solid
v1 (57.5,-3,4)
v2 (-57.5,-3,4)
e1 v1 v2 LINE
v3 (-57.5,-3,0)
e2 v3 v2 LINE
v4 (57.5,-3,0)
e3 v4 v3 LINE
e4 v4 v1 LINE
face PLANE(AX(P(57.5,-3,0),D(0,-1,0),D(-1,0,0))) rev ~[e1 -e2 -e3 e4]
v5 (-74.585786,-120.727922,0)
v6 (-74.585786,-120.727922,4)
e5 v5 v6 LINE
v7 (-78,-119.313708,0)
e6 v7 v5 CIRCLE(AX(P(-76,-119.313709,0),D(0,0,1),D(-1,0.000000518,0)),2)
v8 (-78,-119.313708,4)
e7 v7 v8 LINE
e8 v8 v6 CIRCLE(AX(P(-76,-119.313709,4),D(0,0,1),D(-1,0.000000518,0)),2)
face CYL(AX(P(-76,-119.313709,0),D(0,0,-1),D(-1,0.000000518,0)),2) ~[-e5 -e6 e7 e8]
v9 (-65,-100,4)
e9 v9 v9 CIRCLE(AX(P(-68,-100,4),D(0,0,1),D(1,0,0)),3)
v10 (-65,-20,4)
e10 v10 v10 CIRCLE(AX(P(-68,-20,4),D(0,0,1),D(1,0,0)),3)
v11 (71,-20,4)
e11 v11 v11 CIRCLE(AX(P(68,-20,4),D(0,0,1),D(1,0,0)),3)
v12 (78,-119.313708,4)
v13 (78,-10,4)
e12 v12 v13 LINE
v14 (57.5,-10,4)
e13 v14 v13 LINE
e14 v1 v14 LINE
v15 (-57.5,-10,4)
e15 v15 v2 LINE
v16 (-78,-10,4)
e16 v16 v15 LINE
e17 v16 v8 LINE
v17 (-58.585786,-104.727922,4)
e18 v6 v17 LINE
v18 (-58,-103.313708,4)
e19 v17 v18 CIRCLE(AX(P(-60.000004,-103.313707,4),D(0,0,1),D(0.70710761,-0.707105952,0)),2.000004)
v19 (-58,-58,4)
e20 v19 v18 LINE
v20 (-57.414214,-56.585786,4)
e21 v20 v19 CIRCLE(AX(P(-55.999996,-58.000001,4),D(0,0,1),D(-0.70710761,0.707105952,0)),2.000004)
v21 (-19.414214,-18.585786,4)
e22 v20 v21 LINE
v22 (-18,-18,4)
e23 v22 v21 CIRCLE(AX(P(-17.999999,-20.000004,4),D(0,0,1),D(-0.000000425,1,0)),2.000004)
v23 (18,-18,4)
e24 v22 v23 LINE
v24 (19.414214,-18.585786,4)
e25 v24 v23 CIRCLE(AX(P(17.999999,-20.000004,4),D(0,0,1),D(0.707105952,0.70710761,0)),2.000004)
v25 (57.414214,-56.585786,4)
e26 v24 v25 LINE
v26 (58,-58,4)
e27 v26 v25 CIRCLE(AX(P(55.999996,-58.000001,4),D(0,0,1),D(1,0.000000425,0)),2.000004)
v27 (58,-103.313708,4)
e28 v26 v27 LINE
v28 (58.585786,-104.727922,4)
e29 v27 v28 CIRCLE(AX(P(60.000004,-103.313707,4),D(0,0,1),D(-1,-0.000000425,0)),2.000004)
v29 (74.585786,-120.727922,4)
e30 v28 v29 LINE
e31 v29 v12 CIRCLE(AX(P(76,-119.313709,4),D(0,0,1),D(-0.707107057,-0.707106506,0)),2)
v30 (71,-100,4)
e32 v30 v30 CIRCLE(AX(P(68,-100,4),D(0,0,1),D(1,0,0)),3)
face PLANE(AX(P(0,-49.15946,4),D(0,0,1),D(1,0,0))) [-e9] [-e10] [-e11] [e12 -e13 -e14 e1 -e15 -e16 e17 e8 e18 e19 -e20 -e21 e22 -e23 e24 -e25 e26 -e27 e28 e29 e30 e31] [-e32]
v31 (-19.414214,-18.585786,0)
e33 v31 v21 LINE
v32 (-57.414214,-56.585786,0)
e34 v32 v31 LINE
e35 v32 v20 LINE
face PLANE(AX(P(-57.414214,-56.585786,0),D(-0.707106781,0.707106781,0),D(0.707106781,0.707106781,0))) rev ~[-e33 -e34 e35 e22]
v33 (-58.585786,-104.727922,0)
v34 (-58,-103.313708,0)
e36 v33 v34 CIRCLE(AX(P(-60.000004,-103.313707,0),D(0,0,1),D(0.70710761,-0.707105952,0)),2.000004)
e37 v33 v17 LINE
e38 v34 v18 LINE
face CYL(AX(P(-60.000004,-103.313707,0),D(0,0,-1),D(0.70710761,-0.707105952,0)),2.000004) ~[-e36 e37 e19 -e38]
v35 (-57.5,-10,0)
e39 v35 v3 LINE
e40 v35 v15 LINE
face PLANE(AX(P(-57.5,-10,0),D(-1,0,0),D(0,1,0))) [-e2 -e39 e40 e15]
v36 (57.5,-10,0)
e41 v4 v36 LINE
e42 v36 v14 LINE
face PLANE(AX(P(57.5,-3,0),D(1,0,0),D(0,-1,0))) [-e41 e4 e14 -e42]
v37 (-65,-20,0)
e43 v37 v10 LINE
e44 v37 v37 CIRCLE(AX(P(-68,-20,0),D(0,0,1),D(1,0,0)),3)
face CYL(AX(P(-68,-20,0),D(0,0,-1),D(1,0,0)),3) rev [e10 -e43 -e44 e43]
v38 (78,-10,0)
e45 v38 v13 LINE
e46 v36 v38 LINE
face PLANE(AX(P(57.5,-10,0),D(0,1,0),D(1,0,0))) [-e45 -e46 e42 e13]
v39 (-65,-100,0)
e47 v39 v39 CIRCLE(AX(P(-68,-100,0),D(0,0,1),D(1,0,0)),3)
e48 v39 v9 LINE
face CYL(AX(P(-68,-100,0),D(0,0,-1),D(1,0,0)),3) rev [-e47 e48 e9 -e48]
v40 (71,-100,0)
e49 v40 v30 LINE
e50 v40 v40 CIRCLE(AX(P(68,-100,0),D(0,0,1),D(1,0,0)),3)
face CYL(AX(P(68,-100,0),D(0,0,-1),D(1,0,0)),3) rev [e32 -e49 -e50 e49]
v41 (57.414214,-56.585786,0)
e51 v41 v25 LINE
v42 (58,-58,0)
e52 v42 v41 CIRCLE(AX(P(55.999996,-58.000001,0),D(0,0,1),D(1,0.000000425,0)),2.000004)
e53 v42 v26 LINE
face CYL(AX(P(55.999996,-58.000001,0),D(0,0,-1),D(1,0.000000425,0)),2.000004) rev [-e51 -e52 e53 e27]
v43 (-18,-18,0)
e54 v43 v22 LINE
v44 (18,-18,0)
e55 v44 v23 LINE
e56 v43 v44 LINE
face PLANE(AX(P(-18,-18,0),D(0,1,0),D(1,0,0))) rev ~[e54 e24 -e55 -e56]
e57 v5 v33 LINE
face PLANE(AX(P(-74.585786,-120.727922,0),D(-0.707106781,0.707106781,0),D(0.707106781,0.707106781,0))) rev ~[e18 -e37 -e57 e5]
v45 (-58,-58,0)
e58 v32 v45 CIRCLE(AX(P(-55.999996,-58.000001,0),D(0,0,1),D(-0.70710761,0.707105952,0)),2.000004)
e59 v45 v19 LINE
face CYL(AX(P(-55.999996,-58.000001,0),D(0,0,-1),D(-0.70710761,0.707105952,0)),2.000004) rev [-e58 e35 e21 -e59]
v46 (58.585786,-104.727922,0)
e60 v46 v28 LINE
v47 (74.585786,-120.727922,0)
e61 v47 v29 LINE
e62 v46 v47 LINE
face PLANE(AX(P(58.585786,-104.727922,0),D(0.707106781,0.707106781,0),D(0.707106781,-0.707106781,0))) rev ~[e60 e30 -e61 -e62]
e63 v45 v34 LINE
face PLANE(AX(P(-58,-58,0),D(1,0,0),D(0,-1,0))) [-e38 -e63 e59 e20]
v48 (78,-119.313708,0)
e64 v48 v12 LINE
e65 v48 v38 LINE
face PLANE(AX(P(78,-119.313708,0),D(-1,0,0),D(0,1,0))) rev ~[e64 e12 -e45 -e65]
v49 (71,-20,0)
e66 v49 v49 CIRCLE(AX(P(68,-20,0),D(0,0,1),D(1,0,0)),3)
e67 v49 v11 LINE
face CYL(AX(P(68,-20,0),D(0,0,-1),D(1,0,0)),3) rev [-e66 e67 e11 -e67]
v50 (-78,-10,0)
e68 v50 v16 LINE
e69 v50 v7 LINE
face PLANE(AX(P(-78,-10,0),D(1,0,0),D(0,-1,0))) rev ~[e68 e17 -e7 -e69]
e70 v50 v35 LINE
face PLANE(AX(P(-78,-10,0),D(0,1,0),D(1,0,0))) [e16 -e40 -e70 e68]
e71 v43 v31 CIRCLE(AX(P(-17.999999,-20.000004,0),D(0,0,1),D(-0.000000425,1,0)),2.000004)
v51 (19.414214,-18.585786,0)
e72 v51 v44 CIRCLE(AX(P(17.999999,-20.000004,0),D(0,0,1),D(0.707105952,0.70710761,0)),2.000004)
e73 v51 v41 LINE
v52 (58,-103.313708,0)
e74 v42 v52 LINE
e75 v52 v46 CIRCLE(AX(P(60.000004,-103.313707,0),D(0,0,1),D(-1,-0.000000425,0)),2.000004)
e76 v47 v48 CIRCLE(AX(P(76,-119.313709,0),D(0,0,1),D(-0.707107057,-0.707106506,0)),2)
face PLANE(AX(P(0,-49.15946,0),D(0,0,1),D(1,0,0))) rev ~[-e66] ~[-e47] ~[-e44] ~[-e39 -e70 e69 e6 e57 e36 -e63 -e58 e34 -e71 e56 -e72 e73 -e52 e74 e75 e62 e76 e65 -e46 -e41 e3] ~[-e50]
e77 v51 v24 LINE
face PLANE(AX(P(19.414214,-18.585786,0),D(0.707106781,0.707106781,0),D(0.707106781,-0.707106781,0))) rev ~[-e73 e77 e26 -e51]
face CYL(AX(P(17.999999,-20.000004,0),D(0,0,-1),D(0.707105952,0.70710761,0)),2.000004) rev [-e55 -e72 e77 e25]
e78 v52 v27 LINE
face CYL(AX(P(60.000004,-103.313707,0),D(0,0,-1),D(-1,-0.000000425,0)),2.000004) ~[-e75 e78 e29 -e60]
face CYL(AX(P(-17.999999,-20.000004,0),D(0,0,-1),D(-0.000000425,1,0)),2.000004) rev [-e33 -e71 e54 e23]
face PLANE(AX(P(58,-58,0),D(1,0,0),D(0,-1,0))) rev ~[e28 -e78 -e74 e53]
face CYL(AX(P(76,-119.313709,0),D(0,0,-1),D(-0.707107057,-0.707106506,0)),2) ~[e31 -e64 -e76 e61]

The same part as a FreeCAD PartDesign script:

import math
import FreeCAD as App
import Part
import Sketcher

V = App.Vector
Q = App.Units.Quantity

doc = App.newDocument("Part")
body = doc.addObject("PartDesign::Body", "Body")

# Sketch on XY plane
sketch1 = body.newObject("Sketcher::SketchObject", "Sketch")
sketch1.AttachmentSupport = (doc.getObject("XY_Plane"), [""])
sketch1.MapMode = "FlatFace"
sketch1.addGeometry([
    Part.LineSegment(V(-78, -10, 0), V(-78, -119.3, 0)),  # 0
    Part.ArcOfCircle(Part.Circle(V(-76, -119.3, 0), V(0, 0, 1), 2), math.radians(180), math.radians(315)),  # 1
    Part.LineSegment(V(-74.6, -120.7, 0), V(-58.6, -104.7, 0)),  # 2
    Part.ArcOfCircle(Part.Circle(V(-60, -103.3, 0), V(0, 0, 1), 2), math.radians(-45), math.radians(0)),  # 3
    Part.LineSegment(V(-58, -103.3, 0), V(-58, -58, 0)),  # 4
    Part.ArcOfCircle(Part.Circle(V(-56, -58, 0), V(0, 0, 1), 2), math.radians(135), math.radians(180)),  # 5
    Part.LineSegment(V(-57.4, -56.6, 0), V(-19.4, -18.6, 0)),  # 6
    Part.ArcOfCircle(Part.Circle(V(-18, -20, 0), V(0, 0, 1), 2), math.radians(90), math.radians(135)),  # 7
    Part.LineSegment(V(-18, -18, 0), V(18, -18, 0)),  # 8
    Part.ArcOfCircle(Part.Circle(V(18, -20, 0), V(0, 0, 1), 2), math.radians(45), math.radians(90)),  # 9
    Part.LineSegment(V(19.4, -18.6, 0), V(57.4, -56.6, 0)),  # 10
    Part.ArcOfCircle(Part.Circle(V(56, -58, 0), V(0, 0, 1), 2), math.radians(0), math.radians(45)),  # 11
    Part.LineSegment(V(58, -58, 0), V(58, -103.3, 0)),  # 12
    Part.ArcOfCircle(Part.Circle(V(60, -103.3, 0), V(0, 0, 1), 2), math.radians(-180), math.radians(-135)),  # 13
    Part.LineSegment(V(58.6, -104.7, 0), V(74.6, -120.7, 0)),  # 14
    Part.ArcOfCircle(Part.Circle(V(76, -119.3, 0), V(0, 0, 1), 2), math.radians(-135), math.radians(0)),  # 15
    Part.LineSegment(V(78, -119.3, 0), V(78, -10, 0)),  # 16
    Part.LineSegment(V(78, -10, 0), V(57.5, -10, 0)),  # 17
    Part.LineSegment(V(57.5, -10, 0), V(57.5, -3, 0)),  # 18
    Part.LineSegment(V(57.5, -3, 0), V(-57.5, -3, 0)),  # 19
    Part.LineSegment(V(-57.5, -3, 0), V(-57.5, -10, 0)),  # 20
    Part.LineSegment(V(-57.5, -10, 0), V(-78, -10, 0)),  # 21
    Part.Circle(V(-68, -100, 0), V(0, 0, 1), 3),  # 22
    Part.Circle(V(68, -100, 0), V(0, 0, 1), 3),  # 23
    Part.Circle(V(-68, -20, 0), V(0, 0, 1), 3),  # 24
    Part.Circle(V(68, -20, 0), V(0, 0, 1), 3),  # 25
], False)
sketch1.addConstraint([
    Sketcher.Constraint("Tangent", 0, 2, 1, 1),
    Sketcher.Constraint("Tangent", 1, 2, 2, 1),
    Sketcher.Constraint("Tangent", 2, 2, 3, 1),
    Sketcher.Constraint("Tangent", 3, 2, 4, 1),
    Sketcher.Constraint("Tangent", 4, 2, 5, 2),
    Sketcher.Constraint("Tangent", 5, 1, 6, 1),
    Sketcher.Constraint("Tangent", 6, 2, 7, 2),
    Sketcher.Constraint("Tangent", 7, 1, 8, 1),
    Sketcher.Constraint("Tangent", 8, 2, 9, 2),
    Sketcher.Constraint("Tangent", 9, 1, 10, 1),
    Sketcher.Constraint("Tangent", 10, 2, 11, 2),
    Sketcher.Constraint("Tangent", 11, 1, 12, 1),
    Sketcher.Constraint("Tangent", 12, 2, 13, 1),
    Sketcher.Constraint("Tangent", 13, 2, 14, 1),
    Sketcher.Constraint("Tangent", 14, 2, 15, 1),
    Sketcher.Constraint("Tangent", 15, 2, 16, 1),
    Sketcher.Constraint("Coincident", 16, 2, 17, 1),
    Sketcher.Constraint("Coincident", 17, 2, 18, 1),
    Sketcher.Constraint("Coincident", 18, 2, 19, 1),
    Sketcher.Constraint("Coincident", 19, 2, 20, 1),
    Sketcher.Constraint("Coincident", 20, 2, 21, 1),
    Sketcher.Constraint("Coincident", 21, 2, 0, 1),
    Sketcher.Constraint("Vertical", 0),
    Sketcher.Constraint("Vertical", 4),
    Sketcher.Constraint("Horizontal", 8),
    Sketcher.Constraint("Vertical", 12),
    Sketcher.Constraint("Vertical", 16),
    Sketcher.Constraint("Horizontal", 17),
    Sketcher.Constraint("Vertical", 18),
    Sketcher.Constraint("Horizontal", 19),
    Sketcher.Constraint("Vertical", 20),
    Sketcher.Constraint("Horizontal", 21),
    Sketcher.Constraint("Equal", 3, 5),
    Sketcher.Constraint("Equal", 5, 7),
    Sketcher.Constraint("Equal", 7, 9),
    Sketcher.Constraint("Equal", 9, 11),
    Sketcher.Constraint("Equal", 11, 13),
    Sketcher.Constraint("Equal", 1, 15),
    Sketcher.Constraint("Equal", 22, 23),
    Sketcher.Constraint("Equal", 23, 24),
    Sketcher.Constraint("Equal", 24, 25),
    Sketcher.Constraint("Symmetric", 5, 3, 11, 3, -2),
    Sketcher.Constraint("Symmetric", 1, 3, 15, 3, -2),
    Sketcher.Constraint("Symmetric", 22, 3, 23, 3, -2),
    Sketcher.Constraint("Symmetric", 24, 3, 25, 3, -2),
    Sketcher.Constraint("Symmetric", 17, 2, 20, 2, -2),
    Sketcher.Constraint("Parallel", 2, 6),
    Sketcher.Constraint("Perpendicular", 6, 10),
    Sketcher.Constraint("Parallel", 10, 14),
    Sketcher.Constraint("Horizontal", 3, 3, 13, 3),
    Sketcher.Constraint("Vertical", 22, 3, 24, 3),
    Sketcher.Constraint("Diameter", 22, Q("6 mm")),
    Sketcher.Constraint("Radius", 1, Q("2 mm")),
    Sketcher.Constraint("DistanceX", 8, 1, 8, 2, Q("36 mm")),
    Sketcher.Constraint("DistanceX", 19, 2, 19, 1, Q("115 mm")),
    Sketcher.Constraint("DistanceY", 18, 1, 18, 2, Q("7 mm")),
    Sketcher.Constraint("DistanceX", 17, 2, 17, 1, Q("20.5 mm")),
    Sketcher.Constraint("DistanceY", 5, 3, -1, 1, Q("58.000001 mm")),
    Sketcher.Constraint("DistanceX", 22, 3, -1, 1, Q("68 mm")),
    Sketcher.Constraint("DistanceY", 22, 3, -1, 1, Q("100 mm")),
    Sketcher.Constraint("DistanceY", 24, 3, -1, 1, Q("20 mm")),
    Sketcher.Constraint("DistanceX", 3, 2, -1, 1, Q("58 mm")),
    Sketcher.Constraint("DistanceY", 16, 2, -1, 1, Q("10 mm")),
    Sketcher.Constraint("DistanceY", 1, 3, 3, 3, Q("16.000002 mm")),
    Sketcher.Constraint("DistanceY", 0, 2, 0, 1, Q("109.313708 mm")),
])
pad1 = body.newObject("PartDesign::Pad", "Pad")
pad1.Profile = sketch1
pad1.Length = 4

doc.recompute()
